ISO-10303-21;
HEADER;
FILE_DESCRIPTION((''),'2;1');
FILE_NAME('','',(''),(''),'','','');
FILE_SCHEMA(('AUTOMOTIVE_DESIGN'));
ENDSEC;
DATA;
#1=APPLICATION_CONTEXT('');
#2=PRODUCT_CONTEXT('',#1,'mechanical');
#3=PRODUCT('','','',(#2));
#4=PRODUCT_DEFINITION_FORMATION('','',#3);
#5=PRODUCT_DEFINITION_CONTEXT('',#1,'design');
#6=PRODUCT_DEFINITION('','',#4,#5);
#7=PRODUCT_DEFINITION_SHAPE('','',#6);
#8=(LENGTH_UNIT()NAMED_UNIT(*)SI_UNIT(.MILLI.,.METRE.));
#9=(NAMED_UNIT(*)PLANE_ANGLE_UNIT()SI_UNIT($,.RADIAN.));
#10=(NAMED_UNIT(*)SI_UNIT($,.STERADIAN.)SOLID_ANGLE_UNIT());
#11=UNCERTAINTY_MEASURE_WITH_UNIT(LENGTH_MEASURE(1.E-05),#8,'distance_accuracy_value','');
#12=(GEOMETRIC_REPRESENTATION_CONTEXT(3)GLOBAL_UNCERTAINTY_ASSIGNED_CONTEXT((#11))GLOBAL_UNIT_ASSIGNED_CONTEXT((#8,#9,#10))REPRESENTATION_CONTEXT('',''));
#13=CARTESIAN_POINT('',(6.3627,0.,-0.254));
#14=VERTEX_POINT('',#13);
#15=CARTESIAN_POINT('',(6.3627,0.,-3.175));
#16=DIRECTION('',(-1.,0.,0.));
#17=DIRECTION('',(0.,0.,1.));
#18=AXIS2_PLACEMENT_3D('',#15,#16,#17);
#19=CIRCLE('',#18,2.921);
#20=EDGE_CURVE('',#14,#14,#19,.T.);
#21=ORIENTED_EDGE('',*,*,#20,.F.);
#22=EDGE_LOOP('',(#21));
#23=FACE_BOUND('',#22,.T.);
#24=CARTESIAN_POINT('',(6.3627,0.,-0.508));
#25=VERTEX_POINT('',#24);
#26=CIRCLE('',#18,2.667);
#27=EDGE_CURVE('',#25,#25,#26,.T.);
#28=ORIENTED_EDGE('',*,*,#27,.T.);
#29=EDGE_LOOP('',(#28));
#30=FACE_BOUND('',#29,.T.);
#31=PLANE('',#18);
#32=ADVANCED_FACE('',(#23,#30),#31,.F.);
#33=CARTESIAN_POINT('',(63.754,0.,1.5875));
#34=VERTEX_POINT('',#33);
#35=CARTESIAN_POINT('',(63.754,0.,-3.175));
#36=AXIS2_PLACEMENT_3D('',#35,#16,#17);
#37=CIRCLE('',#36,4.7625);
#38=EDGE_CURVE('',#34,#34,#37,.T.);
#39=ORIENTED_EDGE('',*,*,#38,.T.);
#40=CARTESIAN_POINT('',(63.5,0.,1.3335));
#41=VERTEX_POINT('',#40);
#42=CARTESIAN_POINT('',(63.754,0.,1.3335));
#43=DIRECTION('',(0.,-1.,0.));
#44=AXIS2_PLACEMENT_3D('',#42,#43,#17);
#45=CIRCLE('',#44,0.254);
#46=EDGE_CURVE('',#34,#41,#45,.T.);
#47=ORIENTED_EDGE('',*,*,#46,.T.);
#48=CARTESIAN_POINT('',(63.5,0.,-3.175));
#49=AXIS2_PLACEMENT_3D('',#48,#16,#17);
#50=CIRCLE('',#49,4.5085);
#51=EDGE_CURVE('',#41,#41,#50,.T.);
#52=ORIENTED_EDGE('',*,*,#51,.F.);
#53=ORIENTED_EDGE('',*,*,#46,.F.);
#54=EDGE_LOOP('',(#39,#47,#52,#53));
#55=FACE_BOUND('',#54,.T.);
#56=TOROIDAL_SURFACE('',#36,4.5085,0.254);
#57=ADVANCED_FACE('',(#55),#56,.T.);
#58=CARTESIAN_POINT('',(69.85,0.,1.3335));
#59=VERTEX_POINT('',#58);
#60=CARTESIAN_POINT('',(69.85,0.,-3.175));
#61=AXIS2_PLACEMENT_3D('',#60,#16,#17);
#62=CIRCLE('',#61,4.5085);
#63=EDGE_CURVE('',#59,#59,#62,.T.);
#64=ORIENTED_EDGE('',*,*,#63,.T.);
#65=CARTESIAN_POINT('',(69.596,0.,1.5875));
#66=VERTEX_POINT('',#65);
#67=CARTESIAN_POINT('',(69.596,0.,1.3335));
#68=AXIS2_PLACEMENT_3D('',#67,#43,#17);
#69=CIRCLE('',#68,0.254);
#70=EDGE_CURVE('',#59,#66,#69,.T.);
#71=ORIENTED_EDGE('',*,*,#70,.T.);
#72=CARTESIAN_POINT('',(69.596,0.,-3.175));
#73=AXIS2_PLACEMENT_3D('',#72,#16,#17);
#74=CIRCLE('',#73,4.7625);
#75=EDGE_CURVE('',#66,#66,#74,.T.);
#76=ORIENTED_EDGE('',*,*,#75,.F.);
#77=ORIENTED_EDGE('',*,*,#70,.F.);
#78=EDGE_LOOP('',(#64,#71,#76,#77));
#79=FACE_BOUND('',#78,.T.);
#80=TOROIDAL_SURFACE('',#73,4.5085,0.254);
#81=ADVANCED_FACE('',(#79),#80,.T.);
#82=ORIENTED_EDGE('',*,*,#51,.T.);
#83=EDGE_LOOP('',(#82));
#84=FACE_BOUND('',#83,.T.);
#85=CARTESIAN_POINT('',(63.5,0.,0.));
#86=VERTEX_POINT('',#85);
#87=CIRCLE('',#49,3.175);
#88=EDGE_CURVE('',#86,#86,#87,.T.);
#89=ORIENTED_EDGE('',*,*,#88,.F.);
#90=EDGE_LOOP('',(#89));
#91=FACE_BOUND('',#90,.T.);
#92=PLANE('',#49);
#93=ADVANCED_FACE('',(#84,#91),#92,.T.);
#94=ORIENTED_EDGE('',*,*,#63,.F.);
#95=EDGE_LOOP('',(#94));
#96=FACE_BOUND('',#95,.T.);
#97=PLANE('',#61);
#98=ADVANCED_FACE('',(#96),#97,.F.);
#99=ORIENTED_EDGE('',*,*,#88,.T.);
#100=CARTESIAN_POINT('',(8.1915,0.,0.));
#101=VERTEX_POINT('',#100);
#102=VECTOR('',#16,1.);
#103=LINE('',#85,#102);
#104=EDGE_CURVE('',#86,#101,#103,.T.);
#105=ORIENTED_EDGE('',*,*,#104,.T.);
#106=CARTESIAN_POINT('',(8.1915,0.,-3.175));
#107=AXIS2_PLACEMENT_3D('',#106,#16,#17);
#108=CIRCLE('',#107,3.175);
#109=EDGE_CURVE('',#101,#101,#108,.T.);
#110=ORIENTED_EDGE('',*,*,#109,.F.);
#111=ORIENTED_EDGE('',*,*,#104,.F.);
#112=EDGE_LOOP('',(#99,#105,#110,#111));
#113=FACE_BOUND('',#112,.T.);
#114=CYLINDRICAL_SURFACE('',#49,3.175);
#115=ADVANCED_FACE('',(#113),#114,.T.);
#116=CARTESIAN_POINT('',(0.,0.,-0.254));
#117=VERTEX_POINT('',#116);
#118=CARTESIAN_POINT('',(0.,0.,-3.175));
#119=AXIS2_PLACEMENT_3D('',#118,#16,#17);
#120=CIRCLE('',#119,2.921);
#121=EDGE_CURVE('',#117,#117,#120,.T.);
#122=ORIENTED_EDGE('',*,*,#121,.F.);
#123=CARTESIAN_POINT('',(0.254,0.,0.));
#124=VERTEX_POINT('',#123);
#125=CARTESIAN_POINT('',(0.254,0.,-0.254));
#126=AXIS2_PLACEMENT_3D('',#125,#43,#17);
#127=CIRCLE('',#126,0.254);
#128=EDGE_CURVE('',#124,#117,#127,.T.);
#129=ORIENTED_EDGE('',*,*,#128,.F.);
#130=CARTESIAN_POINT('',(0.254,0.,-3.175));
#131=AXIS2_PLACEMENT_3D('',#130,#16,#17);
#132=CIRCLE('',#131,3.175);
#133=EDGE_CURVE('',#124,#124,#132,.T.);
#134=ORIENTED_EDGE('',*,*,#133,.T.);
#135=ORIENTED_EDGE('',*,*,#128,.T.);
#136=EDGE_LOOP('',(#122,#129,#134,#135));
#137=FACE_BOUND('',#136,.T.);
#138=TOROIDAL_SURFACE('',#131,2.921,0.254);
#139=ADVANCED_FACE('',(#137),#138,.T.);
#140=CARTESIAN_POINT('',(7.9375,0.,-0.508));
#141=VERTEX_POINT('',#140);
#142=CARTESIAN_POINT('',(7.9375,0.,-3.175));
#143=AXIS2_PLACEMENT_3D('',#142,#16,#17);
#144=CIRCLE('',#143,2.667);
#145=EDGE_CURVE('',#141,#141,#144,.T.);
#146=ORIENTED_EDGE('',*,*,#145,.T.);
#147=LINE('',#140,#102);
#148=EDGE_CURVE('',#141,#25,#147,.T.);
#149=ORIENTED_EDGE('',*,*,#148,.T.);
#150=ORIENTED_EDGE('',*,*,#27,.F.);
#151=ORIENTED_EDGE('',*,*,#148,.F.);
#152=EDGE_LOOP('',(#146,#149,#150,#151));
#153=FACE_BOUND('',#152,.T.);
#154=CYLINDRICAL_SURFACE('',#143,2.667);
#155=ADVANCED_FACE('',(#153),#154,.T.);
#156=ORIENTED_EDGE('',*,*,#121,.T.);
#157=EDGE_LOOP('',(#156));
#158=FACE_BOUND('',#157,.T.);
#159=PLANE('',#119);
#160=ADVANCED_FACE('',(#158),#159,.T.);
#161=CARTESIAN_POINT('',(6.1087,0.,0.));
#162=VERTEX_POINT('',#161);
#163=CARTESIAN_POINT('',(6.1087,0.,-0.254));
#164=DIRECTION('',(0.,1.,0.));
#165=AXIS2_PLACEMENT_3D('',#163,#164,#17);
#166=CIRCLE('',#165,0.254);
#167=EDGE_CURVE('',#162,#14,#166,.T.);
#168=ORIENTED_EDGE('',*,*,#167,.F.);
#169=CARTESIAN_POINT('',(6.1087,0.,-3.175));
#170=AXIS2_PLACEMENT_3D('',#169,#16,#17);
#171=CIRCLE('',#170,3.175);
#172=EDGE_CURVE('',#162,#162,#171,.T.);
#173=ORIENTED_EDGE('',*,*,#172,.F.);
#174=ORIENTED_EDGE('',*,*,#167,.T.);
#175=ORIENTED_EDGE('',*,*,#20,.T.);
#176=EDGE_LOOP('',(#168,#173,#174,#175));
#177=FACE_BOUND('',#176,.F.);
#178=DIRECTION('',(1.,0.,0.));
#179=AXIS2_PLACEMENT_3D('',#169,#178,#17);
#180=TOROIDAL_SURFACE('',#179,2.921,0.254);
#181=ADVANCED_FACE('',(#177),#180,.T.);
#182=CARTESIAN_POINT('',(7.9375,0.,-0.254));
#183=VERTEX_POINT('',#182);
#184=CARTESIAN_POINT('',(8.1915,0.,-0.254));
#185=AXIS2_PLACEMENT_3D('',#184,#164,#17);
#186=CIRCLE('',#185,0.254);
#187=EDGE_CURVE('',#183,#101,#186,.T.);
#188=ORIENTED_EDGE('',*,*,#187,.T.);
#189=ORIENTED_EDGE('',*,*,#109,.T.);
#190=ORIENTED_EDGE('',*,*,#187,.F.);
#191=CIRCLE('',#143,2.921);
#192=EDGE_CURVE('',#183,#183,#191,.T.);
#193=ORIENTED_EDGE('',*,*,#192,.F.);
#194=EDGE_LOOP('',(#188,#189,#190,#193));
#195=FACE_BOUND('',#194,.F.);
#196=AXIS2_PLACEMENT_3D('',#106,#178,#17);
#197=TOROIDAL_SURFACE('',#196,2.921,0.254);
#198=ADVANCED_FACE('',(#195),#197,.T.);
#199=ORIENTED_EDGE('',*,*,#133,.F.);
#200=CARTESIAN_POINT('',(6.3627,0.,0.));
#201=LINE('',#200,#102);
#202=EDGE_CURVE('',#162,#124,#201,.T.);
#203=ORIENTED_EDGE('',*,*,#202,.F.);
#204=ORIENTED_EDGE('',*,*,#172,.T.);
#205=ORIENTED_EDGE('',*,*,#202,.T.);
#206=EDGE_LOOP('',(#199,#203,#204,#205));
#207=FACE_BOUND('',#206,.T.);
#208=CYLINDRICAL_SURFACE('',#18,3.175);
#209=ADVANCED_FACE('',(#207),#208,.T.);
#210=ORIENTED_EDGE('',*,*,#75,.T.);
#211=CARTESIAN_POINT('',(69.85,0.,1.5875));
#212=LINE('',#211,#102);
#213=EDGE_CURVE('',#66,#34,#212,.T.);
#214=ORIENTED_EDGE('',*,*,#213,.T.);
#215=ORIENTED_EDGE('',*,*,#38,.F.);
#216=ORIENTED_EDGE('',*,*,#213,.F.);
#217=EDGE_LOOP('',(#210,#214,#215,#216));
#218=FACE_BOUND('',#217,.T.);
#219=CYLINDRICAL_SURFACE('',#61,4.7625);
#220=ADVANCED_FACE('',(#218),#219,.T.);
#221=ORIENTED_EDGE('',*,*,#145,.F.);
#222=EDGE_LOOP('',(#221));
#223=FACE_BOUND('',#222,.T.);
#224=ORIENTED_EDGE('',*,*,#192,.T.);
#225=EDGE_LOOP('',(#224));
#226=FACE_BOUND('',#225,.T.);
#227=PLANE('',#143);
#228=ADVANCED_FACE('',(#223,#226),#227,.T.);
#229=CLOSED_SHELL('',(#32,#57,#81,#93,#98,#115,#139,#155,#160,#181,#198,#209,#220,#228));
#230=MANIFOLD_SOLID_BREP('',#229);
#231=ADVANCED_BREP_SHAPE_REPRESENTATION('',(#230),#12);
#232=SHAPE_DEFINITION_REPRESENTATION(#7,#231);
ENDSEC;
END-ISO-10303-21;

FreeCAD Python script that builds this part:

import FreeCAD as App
import Part
import Sketcher
Q = App.Units.Quantity


def edges_at(feature, points):
    """Names of the edges that pass closest to the given points."""
    edges = feature.Shape.Edges
    near = lambda p: min(range(len(edges)), key=lambda i: edges[i].distToShape(Part.Vertex(*p))[0])
    return sorted({f"Edge{near(p) + 1}" for p in points})


def add_polygon(sketch, points):
    """Adds a closed chain of lines whose ends are joined by coincident constraints."""
    first, n = sketch.GeometryCount, len(points)
    for a, b in zip(points, points[1:] + points[:1]):
        sketch.addGeometry(Part.LineSegment(App.Vector(*a, 0), App.Vector(*b, 0)), False)
    for i in range(n):
        sketch.addConstraint(Sketcher.Constraint("Coincident", first + i, 2, first + (i + 1) % n, 1))

doc = App.newDocument("Part")
body = doc.addObject("PartDesign::Body", "Body")

# Sketch on XZ plane
sketch1 = body.newObject("Sketcher::SketchObject", "Sketch")
sketch1.AttachmentSupport = (doc.getObject("XZ_Plane"), [""])
sketch1.MapMode = "FlatFace"
add_polygon(sketch1, [(6.4, 0), (0, 0), (0, -3.2), (69.8, -3.2), (69.8, 1.6), (63.5, 1.6), (63.5, 0), (7.9, 0), (7.9, -0.5), (6.4, -0.5)])  # lines 0-9
sketch1.addGeometry(Part.LineSegment(App.Vector(69.8, -3.2, 0), App.Vector(0, -3.2, 0)), True)  # axis
sketch1.addConstraint([
    Sketcher.Constraint("Horizontal", 0),
    Sketcher.Constraint("Vertical", 1),
    Sketcher.Constraint("Horizontal", 2),
    Sketcher.Constraint("Vertical", 3),
    Sketcher.Constraint("Horizontal", 4),
    Sketcher.Constraint("Vertical", 5),
    Sketcher.Constraint("Horizontal", 6),
    Sketcher.Constraint("Vertical", 7),
    Sketcher.Constraint("Horizontal", 8),
    Sketcher.Constraint("Vertical", 9),
    Sketcher.Constraint("Horizontal", 10),
    Sketcher.Constraint("Coincident", 0, 2, -1, 1),
    Sketcher.Constraint("Coincident", 10, 1, 2, 2),
    Sketcher.Constraint("PointOnObject", 5, 2, -1),
    Sketcher.Constraint("PointOnObject", 10, 2, -2),
    Sketcher.Constraint("DistanceX", 2, 1, 2, 2, Q("2.75 in")),
    Sketcher.Constraint("DistanceX", 4, 2, 4, 1, Q("0.25 in")),
    Sketcher.Constraint("DistanceY", 7, 2, 7, 1, Q("0.02 in")),
    Sketcher.Constraint("DistanceX", 6, 2, 6, 1, Q("2.1875 in")),
    Sketcher.Constraint("DistanceX", 8, 2, 8, 1, Q("0.062 in")),
    Sketcher.Constraint("DistanceY", 1, 2, 1, 1, Q("0.125 in")),
    Sketcher.Constraint("DistanceY", 3, 1, 3, 2, Q("0.1875 in")),
])
revolution = body.newObject("PartDesign::Revolution", "Revolution")
revolution.Profile = sketch1
revolution.ReferenceAxis = (sketch1, ["Axis0"])
revolution.Angle = 360
doc.recompute()

fillet = body.newObject("PartDesign::Fillet", "Fillet")
fillet.Base = (revolution, edges_at(revolution, [(0, 0, -6.35), (63.5, 0, -7.938), (69.85, 0, -7.938)]))
fillet.Radius = Q("0.01 in")
doc.recompute()

fillet2 = body.newObject("PartDesign::Fillet", "Fillet001")
fillet2.Base = (fillet, edges_at(fillet, [(7.938, 0, -6.35), (6.363, 0, -6.35)]))
fillet2.Radius = Q("0.01 in")

doc.recompute()
